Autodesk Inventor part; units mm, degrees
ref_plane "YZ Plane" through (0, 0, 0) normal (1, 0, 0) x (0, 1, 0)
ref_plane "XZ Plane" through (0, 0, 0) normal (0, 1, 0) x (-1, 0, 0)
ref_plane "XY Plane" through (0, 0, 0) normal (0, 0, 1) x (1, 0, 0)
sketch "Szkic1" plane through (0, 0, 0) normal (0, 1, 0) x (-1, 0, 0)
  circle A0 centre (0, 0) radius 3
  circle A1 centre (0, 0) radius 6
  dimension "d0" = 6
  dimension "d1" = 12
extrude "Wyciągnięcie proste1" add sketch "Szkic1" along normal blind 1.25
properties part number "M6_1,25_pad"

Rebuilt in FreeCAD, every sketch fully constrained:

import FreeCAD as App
import Part
import Sketcher

V = App.Vector

doc = App.newDocument("Part")
body = doc.addObject("PartDesign::Body", "Body")

# Sketch on XZ plane
sketch1 = doc.addObject("Sketcher::SketchObject", "Sketch")
body.addObject(sketch1)
sketch1.AttachmentSupport = (doc.XZ_Plane, [""])
sketch1.MapMode = "FlatFace"
sketch1.addGeometry(Part.Circle(V(0, 0, 0), V(0, 0, 1), 6), False)
sketch1.addGeometry(Part.Circle(V(0, 0, 0), V(0, 0, 1), 3), False)
sketch1.addConstraint(Sketcher.Constraint("Coincident", 0, 3, -1, 1))
sketch1.addConstraint(Sketcher.Constraint("Coincident", 1, 3, -1, 1))
sketch1.addConstraint(Sketcher.Constraint("Diameter", 0, 12.0))
sketch1.addConstraint(Sketcher.Constraint("Diameter", 1, 6.0))
pad1 = doc.addObject("PartDesign::Pad", "Pad")
body.addObject(pad1)
pad1.Profile = sketch1
pad1.Length = 1.25
pad1.Reversed = True

doc.recompute()
